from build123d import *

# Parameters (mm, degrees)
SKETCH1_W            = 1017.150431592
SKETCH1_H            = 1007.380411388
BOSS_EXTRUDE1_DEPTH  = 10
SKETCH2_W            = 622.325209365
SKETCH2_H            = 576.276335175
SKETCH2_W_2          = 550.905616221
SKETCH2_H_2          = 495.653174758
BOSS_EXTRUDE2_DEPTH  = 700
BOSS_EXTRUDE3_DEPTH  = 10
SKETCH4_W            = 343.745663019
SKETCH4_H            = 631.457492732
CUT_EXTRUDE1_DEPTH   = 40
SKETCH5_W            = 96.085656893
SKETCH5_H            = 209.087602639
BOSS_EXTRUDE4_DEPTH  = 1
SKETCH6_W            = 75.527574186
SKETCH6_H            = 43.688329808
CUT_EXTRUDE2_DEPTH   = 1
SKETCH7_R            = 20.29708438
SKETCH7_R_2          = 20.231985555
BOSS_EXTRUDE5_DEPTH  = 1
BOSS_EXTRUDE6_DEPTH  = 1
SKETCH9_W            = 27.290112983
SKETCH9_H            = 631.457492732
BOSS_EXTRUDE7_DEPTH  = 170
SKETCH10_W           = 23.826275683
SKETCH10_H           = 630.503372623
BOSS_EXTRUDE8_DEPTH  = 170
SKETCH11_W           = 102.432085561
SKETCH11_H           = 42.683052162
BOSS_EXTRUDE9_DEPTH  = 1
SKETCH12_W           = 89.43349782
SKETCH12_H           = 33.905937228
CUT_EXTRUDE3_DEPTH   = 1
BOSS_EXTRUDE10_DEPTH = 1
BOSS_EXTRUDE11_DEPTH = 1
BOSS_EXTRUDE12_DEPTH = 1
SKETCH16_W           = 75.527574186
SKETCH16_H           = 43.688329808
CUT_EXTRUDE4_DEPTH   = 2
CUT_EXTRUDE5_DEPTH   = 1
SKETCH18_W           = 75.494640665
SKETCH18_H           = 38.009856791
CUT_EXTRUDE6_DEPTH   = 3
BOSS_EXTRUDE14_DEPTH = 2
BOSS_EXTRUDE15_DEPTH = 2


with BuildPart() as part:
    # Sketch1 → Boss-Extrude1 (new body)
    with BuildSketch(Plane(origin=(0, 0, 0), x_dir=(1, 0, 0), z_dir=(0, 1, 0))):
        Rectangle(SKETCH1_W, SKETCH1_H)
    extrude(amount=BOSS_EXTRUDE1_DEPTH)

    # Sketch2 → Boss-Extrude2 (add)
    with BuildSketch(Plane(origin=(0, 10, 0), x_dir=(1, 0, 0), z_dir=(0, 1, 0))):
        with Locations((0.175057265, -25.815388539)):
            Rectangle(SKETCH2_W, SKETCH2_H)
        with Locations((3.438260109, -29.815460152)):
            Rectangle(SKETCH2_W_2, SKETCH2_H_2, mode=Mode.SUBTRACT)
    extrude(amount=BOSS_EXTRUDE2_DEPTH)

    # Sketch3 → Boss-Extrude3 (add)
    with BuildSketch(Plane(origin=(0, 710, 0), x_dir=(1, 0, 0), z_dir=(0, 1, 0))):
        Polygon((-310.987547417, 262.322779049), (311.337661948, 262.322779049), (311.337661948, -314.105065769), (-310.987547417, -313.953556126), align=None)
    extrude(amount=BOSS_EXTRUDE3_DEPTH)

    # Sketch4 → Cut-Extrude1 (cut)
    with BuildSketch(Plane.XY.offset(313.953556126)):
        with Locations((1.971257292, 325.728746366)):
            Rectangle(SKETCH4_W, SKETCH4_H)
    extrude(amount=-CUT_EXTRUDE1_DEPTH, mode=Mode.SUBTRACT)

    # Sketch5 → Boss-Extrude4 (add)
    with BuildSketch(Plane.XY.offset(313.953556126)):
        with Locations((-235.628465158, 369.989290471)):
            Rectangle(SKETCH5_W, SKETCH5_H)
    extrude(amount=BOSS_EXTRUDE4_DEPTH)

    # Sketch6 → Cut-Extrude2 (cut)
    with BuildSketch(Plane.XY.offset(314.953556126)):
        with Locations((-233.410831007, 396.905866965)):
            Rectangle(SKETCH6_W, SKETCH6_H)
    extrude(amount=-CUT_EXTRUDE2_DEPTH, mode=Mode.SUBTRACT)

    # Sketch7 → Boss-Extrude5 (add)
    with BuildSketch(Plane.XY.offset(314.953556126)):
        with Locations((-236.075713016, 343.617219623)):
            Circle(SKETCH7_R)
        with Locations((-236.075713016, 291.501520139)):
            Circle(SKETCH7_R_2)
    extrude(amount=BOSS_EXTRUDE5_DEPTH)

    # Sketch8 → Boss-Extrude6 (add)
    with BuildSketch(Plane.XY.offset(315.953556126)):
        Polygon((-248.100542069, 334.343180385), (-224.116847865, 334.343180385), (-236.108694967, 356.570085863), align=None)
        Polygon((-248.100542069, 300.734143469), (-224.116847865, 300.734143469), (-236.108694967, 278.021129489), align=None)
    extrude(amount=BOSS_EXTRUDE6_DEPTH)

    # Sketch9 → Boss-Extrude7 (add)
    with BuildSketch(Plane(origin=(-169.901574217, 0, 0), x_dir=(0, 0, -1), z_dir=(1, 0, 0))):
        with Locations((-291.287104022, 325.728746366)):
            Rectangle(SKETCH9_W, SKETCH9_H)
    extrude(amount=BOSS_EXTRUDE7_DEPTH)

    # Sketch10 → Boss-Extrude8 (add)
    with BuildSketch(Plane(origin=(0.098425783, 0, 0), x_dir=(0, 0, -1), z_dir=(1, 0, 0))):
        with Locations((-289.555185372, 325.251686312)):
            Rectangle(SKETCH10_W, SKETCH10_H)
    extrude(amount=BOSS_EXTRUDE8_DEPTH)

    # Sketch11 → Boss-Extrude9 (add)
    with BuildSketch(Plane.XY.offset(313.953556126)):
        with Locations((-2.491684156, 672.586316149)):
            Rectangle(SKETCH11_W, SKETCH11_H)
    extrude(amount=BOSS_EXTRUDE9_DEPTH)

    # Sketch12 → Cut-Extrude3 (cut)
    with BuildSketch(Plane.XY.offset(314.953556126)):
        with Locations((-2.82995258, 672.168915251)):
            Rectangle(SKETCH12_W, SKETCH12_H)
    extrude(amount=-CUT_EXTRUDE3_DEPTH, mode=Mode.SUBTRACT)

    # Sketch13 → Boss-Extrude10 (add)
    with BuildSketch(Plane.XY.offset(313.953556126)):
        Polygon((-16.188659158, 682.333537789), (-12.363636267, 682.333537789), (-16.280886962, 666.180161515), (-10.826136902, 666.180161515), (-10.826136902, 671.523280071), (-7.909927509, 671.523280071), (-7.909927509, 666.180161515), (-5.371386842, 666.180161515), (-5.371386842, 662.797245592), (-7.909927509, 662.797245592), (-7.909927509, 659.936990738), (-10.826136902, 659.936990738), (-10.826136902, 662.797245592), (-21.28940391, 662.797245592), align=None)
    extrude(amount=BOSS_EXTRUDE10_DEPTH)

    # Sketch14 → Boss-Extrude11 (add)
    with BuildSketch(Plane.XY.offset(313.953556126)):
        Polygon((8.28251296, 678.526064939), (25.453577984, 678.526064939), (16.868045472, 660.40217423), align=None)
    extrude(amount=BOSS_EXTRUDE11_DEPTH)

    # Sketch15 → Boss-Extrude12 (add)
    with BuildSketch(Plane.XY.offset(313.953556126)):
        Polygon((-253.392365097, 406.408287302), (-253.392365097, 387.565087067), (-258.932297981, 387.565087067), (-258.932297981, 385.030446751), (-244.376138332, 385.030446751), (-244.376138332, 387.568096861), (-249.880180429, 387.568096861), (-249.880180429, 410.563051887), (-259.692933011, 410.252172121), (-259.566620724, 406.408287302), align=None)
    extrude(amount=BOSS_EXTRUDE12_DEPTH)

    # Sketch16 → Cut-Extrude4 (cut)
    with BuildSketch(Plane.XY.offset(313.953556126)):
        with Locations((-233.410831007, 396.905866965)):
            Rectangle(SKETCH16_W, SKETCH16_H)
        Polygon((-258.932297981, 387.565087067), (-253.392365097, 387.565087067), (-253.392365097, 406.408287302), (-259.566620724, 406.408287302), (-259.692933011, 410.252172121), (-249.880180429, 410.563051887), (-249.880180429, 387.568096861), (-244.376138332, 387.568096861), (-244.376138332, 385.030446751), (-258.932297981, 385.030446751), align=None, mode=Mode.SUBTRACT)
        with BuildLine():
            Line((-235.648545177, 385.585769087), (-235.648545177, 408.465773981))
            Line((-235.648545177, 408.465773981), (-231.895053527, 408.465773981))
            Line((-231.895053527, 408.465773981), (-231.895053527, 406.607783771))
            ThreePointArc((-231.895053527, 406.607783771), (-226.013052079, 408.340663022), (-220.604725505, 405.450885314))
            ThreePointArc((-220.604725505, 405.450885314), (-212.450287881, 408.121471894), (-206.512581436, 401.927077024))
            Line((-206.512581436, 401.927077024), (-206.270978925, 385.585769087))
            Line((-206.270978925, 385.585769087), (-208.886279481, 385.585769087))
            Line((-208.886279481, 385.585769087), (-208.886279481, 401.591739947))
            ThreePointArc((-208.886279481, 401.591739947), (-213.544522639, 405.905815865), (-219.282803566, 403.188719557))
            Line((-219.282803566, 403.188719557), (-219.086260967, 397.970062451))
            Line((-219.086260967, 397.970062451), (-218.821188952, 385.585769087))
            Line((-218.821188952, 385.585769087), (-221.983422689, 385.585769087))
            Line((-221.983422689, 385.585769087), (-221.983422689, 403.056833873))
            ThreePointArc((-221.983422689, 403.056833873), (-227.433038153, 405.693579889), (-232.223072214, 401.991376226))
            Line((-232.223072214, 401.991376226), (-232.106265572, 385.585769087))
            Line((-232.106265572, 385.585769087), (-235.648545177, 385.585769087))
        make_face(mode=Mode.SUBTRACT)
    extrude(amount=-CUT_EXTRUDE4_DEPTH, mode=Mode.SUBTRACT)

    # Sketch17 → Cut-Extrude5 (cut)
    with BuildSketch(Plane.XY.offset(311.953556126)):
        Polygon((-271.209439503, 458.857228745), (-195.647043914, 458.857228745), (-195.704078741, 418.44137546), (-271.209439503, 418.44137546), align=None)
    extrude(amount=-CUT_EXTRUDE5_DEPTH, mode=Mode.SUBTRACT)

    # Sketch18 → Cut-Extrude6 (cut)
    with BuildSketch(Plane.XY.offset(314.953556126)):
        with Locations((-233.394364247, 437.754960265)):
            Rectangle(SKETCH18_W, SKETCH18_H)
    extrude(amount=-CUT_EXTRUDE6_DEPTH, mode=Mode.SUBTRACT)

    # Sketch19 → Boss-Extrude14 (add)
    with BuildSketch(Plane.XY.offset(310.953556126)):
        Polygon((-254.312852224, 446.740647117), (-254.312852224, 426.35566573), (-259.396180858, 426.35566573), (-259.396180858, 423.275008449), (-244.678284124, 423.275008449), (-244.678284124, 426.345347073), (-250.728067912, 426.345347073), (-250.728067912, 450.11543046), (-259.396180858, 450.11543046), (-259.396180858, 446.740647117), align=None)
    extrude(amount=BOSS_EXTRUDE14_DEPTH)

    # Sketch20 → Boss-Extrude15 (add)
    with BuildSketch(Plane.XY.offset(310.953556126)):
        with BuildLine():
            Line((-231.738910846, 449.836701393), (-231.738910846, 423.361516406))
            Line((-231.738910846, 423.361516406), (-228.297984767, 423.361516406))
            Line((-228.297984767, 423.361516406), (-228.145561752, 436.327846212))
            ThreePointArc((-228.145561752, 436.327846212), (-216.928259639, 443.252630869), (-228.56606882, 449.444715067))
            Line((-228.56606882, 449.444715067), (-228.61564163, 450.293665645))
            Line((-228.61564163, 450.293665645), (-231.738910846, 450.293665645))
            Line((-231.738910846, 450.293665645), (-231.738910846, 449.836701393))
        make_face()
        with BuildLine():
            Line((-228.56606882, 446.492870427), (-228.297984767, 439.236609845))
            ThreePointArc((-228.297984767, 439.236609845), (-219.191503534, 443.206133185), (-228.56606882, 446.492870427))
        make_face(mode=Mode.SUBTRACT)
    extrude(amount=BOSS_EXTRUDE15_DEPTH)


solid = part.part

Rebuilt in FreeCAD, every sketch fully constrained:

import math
import FreeCAD as App
import Part
import Sketcher
Q = App.Units.Quantity

doc = App.newDocument("Part")
body = doc.addObject("PartDesign::Body", "Body")

sketch1 = body.newObject("Sketcher::SketchObject", "Sketch")
sketch1.AttachmentSupport = (doc.getObject("XZ_Plane"), [""])
sketch1.MapMode = "FlatFace"
sketch1.addGeometry([
    Part.LineSegment(App.Vector(-509, -504, 0), App.Vector(-509, 504, 0)),
    Part.LineSegment(App.Vector(-509, 504, 0), App.Vector(509, 504, 0)),
    Part.LineSegment(App.Vector(509, 504, 0), App.Vector(509, -504, 0)),
    Part.LineSegment(App.Vector(509, -504, 0), App.Vector(-509, -504, 0)),
], False)
sketch1.addConstraint([
    Sketcher.Constraint("Coincident", 0, 2, 1, 1),
    Sketcher.Constraint("Coincident", 1, 2, 2, 1),
    Sketcher.Constraint("Coincident", 2, 2, 3, 1),
    Sketcher.Constraint("Coincident", 3, 2, 0, 1),
    Sketcher.Constraint("Vertical", 0),
    Sketcher.Constraint("Horizontal", 1),
    Sketcher.Constraint("Vertical", 2),
    Sketcher.Constraint("Horizontal", 3),
    Sketcher.Constraint("Symmetric", 0, 2, 2, 2, -1, 1),
    Sketcher.Constraint("DistanceX", 1, 1, 1, 2, Q("1017.150432 mm")),
    Sketcher.Constraint("DistanceY", 0, 1, 0, 2, Q("1007.380411 mm")),
])
pad1 = body.newObject("PartDesign::Pad", "Pad")
pad1.Profile = sketch1
pad1.Length = 10
pad1.Reversed = True

sketch2 = body.newObject("Sketcher::SketchObject", "Sketch001")
sketch2.AttachmentSupport = (doc.getObject("XZ_Plane"), [""])
sketch2.MapMode = "FlatFace"
sketch2.AttachmentOffset = App.Placement(App.Vector(0, 0, -10), App.Rotation())
sketch2.addGeometry([
    Part.LineSegment(App.Vector(-311, -262, 0), App.Vector(-311, 314, 0)),
    Part.LineSegment(App.Vector(-311, 314, 0), App.Vector(311, 314, 0)),
    Part.LineSegment(App.Vector(311, 314, 0), App.Vector(311, -262, 0)),
    Part.LineSegment(App.Vector(311, -262, 0), App.Vector(-311, -262, 0)),
    Part.LineSegment(App.Vector(279, 278, 0), App.Vector(-272, 278, 0)),
    Part.LineSegment(App.Vector(-272, 278, 0), App.Vector(-272, -218, 0)),
    Part.LineSegment(App.Vector(-272, -218, 0), App.Vector(279, -218, 0)),
    Part.LineSegment(App.Vector(279, -218, 0), App.Vector(279, 278, 0)),
], False)
sketch2.addConstraint([
    Sketcher.Constraint("Coincident", 0, 2, 1, 1),
    Sketcher.Constraint("Coincident", 1, 2, 2, 1),
    Sketcher.Constraint("Coincident", 2, 2, 3, 1),
    Sketcher.Constraint("Coincident", 3, 2, 0, 1),
    Sketcher.Constraint("Coincident", 4, 2, 5, 1),
    Sketcher.Constraint("Coincident", 5, 2, 6, 1),
    Sketcher.Constraint("Coincident", 6, 2, 7, 1),
    Sketcher.Constraint("Coincident", 7, 2, 4, 1),
    Sketcher.Constraint("Vertical", 0),
    Sketcher.Constraint("Horizontal", 1),
    Sketcher.Constraint("Vertical", 2),
    Sketcher.Constraint("Horizontal", 3),
    Sketcher.Constraint("Horizontal", 4),
    Sketcher.Constraint("Vertical", 5),
    Sketcher.Constraint("Horizontal", 6),
    Sketcher.Constraint("Vertical", 7),
    Sketcher.Constraint("DistanceX", 0, 2, 4, 2, Q("38.972999 mm")),
    Sketcher.Constraint("DistanceX", 1, 1, 1, 2, Q("622.325209 mm")),
    Sketcher.Constraint("DistanceX", 4, 2, 4, 1, Q("550.905616 mm")),
    Sketcher.Constraint("DistanceY", 0, 1, 0, 2, Q("576.276335 mm")),
    Sketcher.Constraint("DistanceY", 5, 2, 5, 1, Q("495.653175 mm")),
    Sketcher.Constraint("DistanceX", -1, 1, 1, 2, Q("311.337662 mm")),
    Sketcher.Constraint("DistanceY", 2, 2, -1, 1, Q("262.322779 mm")),
    Sketcher.Constraint("DistanceY", 4, 2, 0, 2, Q("36.311509 mm")),
])
pad2 = body.newObject("PartDesign::Pad", "Pad001")
pad2.Profile = sketch2
pad2.Length = 700
pad2.Reversed = True

sketch3 = body.newObject("Sketcher::SketchObject", "Sketch002")
sketch3.AttachmentSupport = (doc.getObject("XZ_Plane"), [""])
sketch3.MapMode = "FlatFace"
sketch3.AttachmentOffset = App.Placement(App.Vector(0, 0, -710), App.Rotation())
sketch3.addGeometry([
    Part.LineSegment(App.Vector(311, -262, 0), App.Vector(-311, -262, 0)),
    Part.LineSegment(App.Vector(-311, -262, 0), App.Vector(-311, 314, 0)),
    Part.LineSegment(App.Vector(-311, 314, 0), App.Vector(311, 314, 0)),
    Part.LineSegment(App.Vector(311, 314, 0), App.Vector(311, -262, 0)),
], False)
sketch3.addConstraint([
    Sketcher.Constraint("Coincident", 0, 2, 1, 1),
    Sketcher.Constraint("Coincident", 1, 2, 2, 1),
    Sketcher.Constraint("Coincident", 2, 2, 3, 1),
    Sketcher.Constraint("Coincident", 3, 2, 0, 1),
    Sketcher.Constraint("Horizontal", 0),
    Sketcher.Constraint("Vertical", 1),
    Sketcher.Constraint("Vertical", 3),
    Sketcher.Constraint("DistanceX", 0, 2, 0, 1, Q("622.325209 mm")),
    Sketcher.Constraint("DistanceY", 1, 1, 1, 2, Q("576.276335 mm")),
    Sketcher.Constraint("DistanceY", 3, 2, 3, 1, Q("576.427845 mm")),
    Sketcher.Constraint("DistanceY", 0, 2, -1, 1, Q("262.322779 mm")),
    Sketcher.Constraint("DistanceX", -1, 1, 2, 2, Q("311.337662 mm")),
])
pad3 = body.newObject("PartDesign::Pad", "Pad002")
pad3.Profile = sketch3
pad3.Length = 10
pad3.Reversed = True

sketch4 = body.newObject("Sketcher::SketchObject", "Sketch003")
sketch4.AttachmentSupport = (doc.getObject("XY_Plane"), [""])
sketch4.MapMode = "FlatFace"
sketch4.AttachmentOffset = App.Placement(App.Vector(0, 0, 313.953556), App.Rotation())
sketch4.addGeometry([
    Part.LineSegment(App.Vector(-170, 641, 0), App.Vector(-170, 10, 0)),
    Part.LineSegment(App.Vector(-170, 10, 0), App.Vector(174, 10, 0)),
    Part.LineSegment(App.Vector(174, 10, 0), App.Vector(174, 641, 0)),
    Part.LineSegment(App.Vector(174, 641, 0), App.Vector(-170, 641, 0)),
], False)
sketch4.addConstraint([
    Sketcher.Constraint("Coincident", 0, 2, 1, 1),
    Sketcher.Constraint("Coincident", 1, 2, 2, 1),
    Sketcher.Constraint("Coincident", 2, 2, 3, 1),
    Sketcher.Constraint("Coincident", 3, 2, 0, 1),
    Sketcher.Constraint("Vertical", 0),
    Sketcher.Constraint("Horizontal", 1),
    Sketcher.Constraint("Vertical", 2),
    Sketcher.Constraint("Horizontal", 3),
    Sketcher.Constraint("DistanceY", -1, 1, 0, 2, Q("10 mm")),
    Sketcher.Constraint("DistanceX", 1, 1, 1, 2, Q("343.745663 mm")),
    Sketcher.Constraint("DistanceY", 0, 2, 0, 1, Q("631.457493 mm")),
    Sketcher.Constraint("DistanceX", -1, 1, 1, 2, Q("173.844089 mm")),
])
pocket1 = body.newObject("PartDesign::Pocket", "Pocket")
pocket1.Profile = sketch4
pocket1.Length = 40

sketch5 = body.newObject("Sketcher::SketchObject", "Sketch004")
sketch5.AttachmentSupport = (doc.getObject("XY_Plane"), [""])
sketch5.MapMode = "FlatFace"
sketch5.AttachmentOffset = App.Placement(App.Vector(0, 0, 313.953556), App.Rotation())
sketch5.addGeometry([
    Part.LineSegment(App.Vector(-284, 475, 0), App.Vector(-284, 265, 0)),
    Part.LineSegment(App.Vector(-284, 265, 0), App.Vector(-188, 265, 0)),
    Part.LineSegment(App.Vector(-188, 265, 0), App.Vector(-188, 475, 0)),
    Part.LineSegment(App.Vector(-188, 475, 0), App.Vector(-284, 475, 0)),
], False)
sketch5.addConstraint([
    Sketcher.Constraint("Coincident", 0, 2, 1, 1),
    Sketcher.Constraint("Coincident", 1, 2, 2, 1),
    Sketcher.Constraint("Coincident", 2, 2, 3, 1),
    Sketcher.Constraint("Coincident", 3, 2, 0, 1),
    Sketcher.Constraint("Vertical", 0),
    Sketcher.Constraint("Horizontal", 1),
    Sketcher.Constraint("Vertical", 2),
    Sketcher.Constraint("Horizontal", 3),
    Sketcher.Constraint("DistanceX", 1, 1, 1, 2, Q("96.085657 mm")),
    Sketcher.Constraint("DistanceY", 0, 2, 0, 1, Q("209.087603 mm")),
    Sketcher.Constraint("DistanceY", -1, 1, 0, 2, Q("265.445489 mm")),
    Sketcher.Constraint("DistanceX", 0, 2, -1, 1, Q("283.671294 mm")),
])
pad4 = body.newObject("PartDesign::Pad", "Pad003")
pad4.Profile = sketch5
pad4.Length = 1

sketch6 = body.newObject("Sketcher::SketchObject", "Sketch005")
sketch6.AttachmentSupport = (doc.getObject("XY_Plane"), [""])
sketch6.MapMode = "FlatFace"
sketch6.AttachmentOffset = App.Placement(App.Vector(0, 0, 314.953556), App.Rotation())
sketch6.addGeometry([
    Part.LineSegment(App.Vector(-271, 419, 0), App.Vector(-271, 375, 0)),
    Part.LineSegment(App.Vector(-271, 375, 0), App.Vector(-196, 375, 0)),
    Part.LineSegment(App.Vector(-196, 375, 0), App.Vector(-196, 419, 0)),
    Part.LineSegment(App.Vector(-196, 419, 0), App.Vector(-271, 419, 0)),
], False)
sketch6.addConstraint([
    Sketcher.Constraint("Coincident", 0, 2, 1, 1),
    Sketcher.Constraint("Coincident", 1, 2, 2, 1),
    Sketcher.Constraint("Coincident", 2, 2, 3, 1),
    Sketcher.Constraint("Coincident", 3, 2, 0, 1),
    Sketcher.Constraint("Vertical", 0),
    Sketcher.Constraint("Horizontal", 1),
    Sketcher.Constraint("Vertical", 2),
    Sketcher.Constraint("Horizontal", 3),
    Sketcher.Constraint("DistanceY", 0, 2, 0, 1, Q("43.68833 mm")),
    Sketcher.Constraint("DistanceX", 1, 1, 1, 2, Q("75.527574 mm")),
    Sketcher.Constraint("DistanceX", 0, 2, -1, 1, Q("271.174618 mm")),
    Sketcher.Constraint("DistanceY", -1, 1, 2, 2, Q("418.750032 mm")),
])
pocket2 = body.newObject("PartDesign::Pocket", "Pocket001")
pocket2.Profile = sketch6
pocket2.Length = 1

sketch7 = body.newObject("Sketcher::SketchObject", "Sketch006")
sketch7.AttachmentSupport = (doc.getObject("XY_Plane"), [""])
sketch7.MapMode = "FlatFace"
sketch7.AttachmentOffset = App.Placement(App.Vector(0, 0, 314.953556), App.Rotation())
sketch7.addGeometry([
    Part.Circle(App.Vector(-236, 344, 0), App.Vector(0, 0, 1), 20),
    Part.Circle(App.Vector(-236, 292, 0), App.Vector(0, 0, 1), 20),
], False)
sketch7.addConstraint([
    Sketcher.Constraint("Vertical", 0, 3, 1, 3),
    Sketcher.Constraint("Diameter", 0, Q("40.594169 mm")),
    Sketcher.Constraint("Diameter", 1, Q("40.463971 mm")),
    Sketcher.Constraint("DistanceY", 1, 3, 0, 3, Q("52.115699 mm")),
    Sketcher.Constraint("DistanceY", -1, 1, 0, 3, Q("343.61722 mm")),
    Sketcher.Constraint("DistanceX", 0, 3, -1, 1, Q("236.075713 mm")),
])
pad5 = body.newObject("PartDesign::Pad", "Pad004")
pad5.Profile = sketch7
pad5.Length = 1

sketch8 = body.newObject("Sketcher::SketchObject", "Sketch007")
sketch8.AttachmentSupport = (doc.getObject("XY_Plane"), [""])
sketch8.MapMode = "FlatFace"
sketch8.AttachmentOffset = App.Placement(App.Vector(0, 0, 315.953556), App.Rotation())
sketch8.addGeometry([
    Part.LineSegment(App.Vector(-248, 334, 0), App.Vector(-224, 334, 0)),
    Part.LineSegment(App.Vector(-224, 334, 0), App.Vector(-236, 357, 0)),
    Part.LineSegment(App.Vector(-236, 357, 0), App.Vector(-248, 334, 0)),
    Part.LineSegment(App.Vector(-224, 301, 0), App.Vector(-248, 301, 0)),
    Part.LineSegment(App.Vector(-248, 301, 0), App.Vector(-236, 278, 0)),
    Part.LineSegment(App.Vector(-236, 278, 0), App.Vector(-224, 301, 0)),
], False)
sketch8.addConstraint([
    Sketcher.Constraint("Coincident", 0, 2, 1, 1),
    Sketcher.Constraint("Coincident", 1, 2, 2, 1),
    Sketcher.Constraint("Coincident", 2, 2, 0, 1),
    Sketcher.Constraint("Coincident", 3, 2, 4, 1),
    Sketcher.Constraint("Coincident", 4, 2, 5, 1),
    Sketcher.Constraint("Coincident", 5, 2, 3, 1),
    Sketcher.Constraint("Horizontal", 0),
    Sketcher.Constraint("Horizontal", 3),
    Sketcher.Constraint("Vertical", 2, 2, 3, 2),
    Sketcher.Constraint("Vertical", 1, 2, 4, 2),
    Sketcher.Constraint("Vertical", 0, 2, 5, 2),
    Sketcher.Constraint("Equal", 1, 2),
    Sketcher.Constraint("Distance", 1, Q("25.255489 mm")),
    Sketcher.Constraint("Distance", 4, Q("25.684342 mm")),
    Sketcher.Constraint("DistanceX", 0, 1, 0, 2, Q("23.983694 mm")),
    Sketcher.Constraint("DistanceY", -1, 1, 0, 2, Q("334.34318 mm")),
    Sketcher.Constraint("DistanceY", -1, 1, 4, 2, Q("278.021129 mm")),
    Sketcher.Constraint("DistanceX", 0, 2, -1, 1, Q("224.116848 mm")),
])
pad6 = body.newObject("PartDesign::Pad", "Pad005")
pad6.Profile = sketch8
pad6.Length = 1

sketch9 = body.newObject("Sketcher::SketchObject", "Sketch008")
sketch9.AttachmentSupport = (doc.getObject("YZ_Plane"), [""])
sketch9.MapMode = "FlatFace"
sketch9.AttachmentOffset = App.Placement(App.Vector(0, 0, -169.901574), App.Rotation())
sketch9.addGeometry([
    Part.LineSegment(App.Vector(641, 305, 0), App.Vector(10, 305, 0)),
    Part.LineSegment(App.Vector(10, 305, 0), App.Vector(10, 278, 0)),
    Part.LineSegment(App.Vector(10, 278, 0), App.Vector(641, 278, 0)),
    Part.LineSegment(App.Vector(641, 278, 0), App.Vector(641, 305, 0)),
], False)
sketch9.addConstraint([
    Sketcher.Constraint("Coincident", 0, 2, 1, 1),
    Sketcher.Constraint("Coincident", 1, 2, 2, 1),
    Sketcher.Constraint("Coincident", 2, 2, 3, 1),
    Sketcher.Constraint("Coincident", 3, 2, 0, 1),
    Sketcher.Constraint("Horizontal", 0),
    Sketcher.Constraint("Vertical", 1),
    Sketcher.Constraint("Horizontal", 2),
    Sketcher.Constraint("Vertical", 3),
    Sketcher.Constraint("DistanceX", -1, 1, 0, 2, Q("10 mm")),
    Sketcher.Constraint("DistanceX", 0, 2, 0, 1, Q("631.457493 mm")),
    Sketcher.Constraint("DistanceY", 1, 2, 1, 1, Q("27.290113 mm")),
    Sketcher.Constraint("DistanceY", -1, 1, 0, 2, Q("304.932161 mm")),
])
pad7 = body.newObject("PartDesign::Pad", "Pad006")
pad7.Profile = sketch9
pad7.Length = 170

sketch10 = body.newObject("Sketcher::SketchObject", "Sketch009")
sketch10.AttachmentSupport = (doc.getObject("YZ_Plane"), [""])
sketch10.MapMode = "FlatFace"
sketch10.AttachmentOffset = App.Placement(App.Vector(0, 0, 0.098426), App.Rotation())
sketch10.addGeometry([
    Part.LineSegment(App.Vector(641, 301, 0), App.Vector(10, 301, 0)),
    Part.LineSegment(App.Vector(10, 301, 0), App.Vector(10, 278, 0)),
    Part.LineSegment(App.Vector(10, 278, 0), App.Vector(641, 278, 0)),
    Part.LineSegment(App.Vector(641, 278, 0), App.Vector(641, 301, 0)),
], False)
sketch10.addConstraint([
    Sketcher.Constraint("Coincident", 0, 2, 1, 1),
    Sketcher.Constraint("Coincident", 1, 2, 2, 1),
    Sketcher.Constraint("Coincident", 2, 2, 3, 1),
    Sketcher.Constraint("Coincident", 3, 2, 0, 1),
    Sketcher.Constraint("Horizontal", 0),
    Sketcher.Constraint("Vertical", 1),
    Sketcher.Constraint("Horizontal", 2),
    Sketcher.Constraint("Vertical", 3),
    Sketcher.Constraint("DistanceX", -1, 1, 0, 2, Q("10 mm")),
    Sketcher.Constraint("DistanceX", 0, 2, 0, 1, Q("630.503373 mm")),
    Sketcher.Constraint("DistanceY", 1, 2, 1, 1, Q("23.826276 mm")),
    Sketcher.Constraint("DistanceY", -1, 1, 0, 2, Q("301.468323 mm")),
])
pad8 = body.newObject("PartDesign::Pad", "Pad007")
pad8.Profile = sketch10
pad8.Length = 170

sketch11 = body.newObject("Sketcher::SketchObject", "Sketch010")
sketch11.AttachmentSupport = (doc.getObject("XY_Plane"), [""])
sketch11.MapMode = "FlatFace"
sketch11.AttachmentOffset = App.Placement(App.Vector(0, 0, 313.953556), App.Rotation())
sketch11.addGeometry([
    Part.LineSegment(App.Vector(-54, 694, 0), App.Vector(-54, 651, 0)),
    Part.LineSegment(App.Vector(-54, 651, 0), App.Vector(49, 651, 0)),
    Part.LineSegment(App.Vector(49, 651, 0), App.Vector(49, 694, 0)),
    Part.LineSegment(App.Vector(49, 694, 0), App.Vector(-54, 694, 0)),
], False)
sketch11.addConstraint([
    Sketcher.Constraint("Coincident", 0, 2, 1, 1),
    Sketcher.Constraint("Coincident", 1, 2, 2, 1),
    Sketcher.Constraint("Coincident", 2, 2, 3, 1),
    Sketcher.Constraint("Coincident", 3, 2, 0, 1),
    Sketcher.Constraint("Vertical", 0),
    Sketcher.Constraint("Horizontal", 1),
    Sketcher.Constraint("Vertical", 2),
    Sketcher.Constraint("Horizontal", 3),
    Sketcher.Constraint("DistanceX", 1, 1, 1, 2, Q("102.432086 mm")),
    Sketcher.Constraint("DistanceY", 0, 2, 0, 1, Q("42.683052 mm")),
    Sketcher.Constraint("DistanceY", -1, 1, 0, 2, Q("651.24479 mm")),
    Sketcher.Constraint("DistanceX", -1, 1, 1, 2, Q("48.724359 mm")),
])
pad9 = body.newObject("PartDesign::Pad", "Pad008")
pad9.Profile = sketch11
pad9.Length = 1

sketch12 = body.newObject("Sketcher::SketchObject", "Sketch011")
sketch12.AttachmentSupport = (doc.getObject("XY_Plane"), [""])
sketch12.MapMode = "FlatFace"
sketch12.AttachmentOffset = App.Placement(App.Vector(0, 0, 314.953556), App.Rotation())
sketch12.addGeometry([
    Part.LineSegment(App.Vector(-48, 689, 0), App.Vector(-48, 655, 0)),
    Part.LineSegment(App.Vector(-48, 655, 0), App.Vector(42, 655, 0)),
    Part.LineSegment(App.Vector(42, 655, 0), App.Vector(42, 689, 0)),
    Part.LineSegment(App.Vector(42, 689, 0), App.Vector(-48, 689, 0)),
], False)
sketch12.addConstraint([
    Sketcher.Constraint("Coincident", 0, 2, 1, 1),
    Sketcher.Constraint("Coincident", 1, 2, 2, 1),
    Sketcher.Constraint("Coincident", 2, 2, 3, 1),
    Sketcher.Constraint("Coincident", 3, 2, 0, 1),
    Sketcher.Constraint("Vertical", 0),
    Sketcher.Constraint("Horizontal", 1),
    Sketcher.Constraint("Vertical", 2),
    Sketcher.Constraint("Horizontal", 3),
    Sketcher.Constraint("DistanceX", 0, 2, -1, 1, Q("47.546701 mm")),
    Sketcher.Constraint("DistanceX", 1, 1, 1, 2, Q("89.433498 mm")),
    Sketcher.Constraint("DistanceY", 0, 2, 0, 1, Q("33.905937 mm")),
    Sketcher.Constraint("DistanceY", -1, 1, 0, 2, Q("655.215947 mm")),
])
pocket3 = body.newObject("PartDesign::Pocket", "Pocket002")
pocket3.Profile = sketch12
pocket3.Length = 1

sketch13 = body.newObject("Sketcher::SketchObject", "Sketch012")
sketch13.AttachmentSupport = (doc.getObject("XY_Plane"), [""])
sketch13.MapMode = "FlatFace"
sketch13.AttachmentOffset = App.Placement(App.Vector(0, 0, 313.953556), App.Rotation())
sketch13.addGeometry([
    Part.LineSegment(App.Vector(-12.4, 682.3, 0), App.Vector(-16.2, 682.3, 0)),
    Part.LineSegment(App.Vector(-16.2, 682.3, 0), App.Vector(-21.3, 662.8, 0)),
    Part.LineSegment(App.Vector(-21.3, 662.8, 0), App.Vector(-10.8, 662.8, 0)),
    Part.LineSegment(App.Vector(-10.8, 662.8, 0), App.Vector(-10.8, 659.9, 0)),
    Part.LineSegment(App.Vector(-10.8, 659.9, 0), App.Vector(-7.9, 659.9, 0)),
    Part.LineSegment(App.Vector(-7.9, 659.9, 0), App.Vector(-7.9, 662.8, 0)),
    Part.LineSegment(App.Vector(-7.9, 662.8, 0), App.Vector(-5.4, 662.8, 0)),
    Part.LineSegment(App.Vector(-5.4, 662.8, 0), App.Vector(-5.4, 666.2, 0)),
    Part.LineSegment(App.Vector(-5.4, 666.2, 0), App.Vector(-7.9, 666.2, 0)),
    Part.LineSegment(App.Vector(-7.9, 666.2, 0), App.Vector(-7.9, 671.5, 0)),
    Part.LineSegment(App.Vector(-7.9, 671.5, 0), App.Vector(-10.8, 671.5, 0)),
    Part.LineSegment(App.Vector(-10.8, 671.5, 0), App.Vector(-10.8, 666.2, 0)),
    Part.LineSegment(App.Vector(-10.8, 666.2, 0), App.Vector(-16.3, 666.2, 0)),
    Part.LineSegment(App.Vector(-16.3, 666.2, 0), App.Vector(-12.4, 682.3, 0)),
], False)
sketch13.addConstraint([
    Sketcher.Constraint("Coincident", 0, 2, 1, 1),
    Sketcher.Constraint("Coincident", 1, 2, 2, 1),
    Sketcher.Constraint("Coincident", 2, 2, 3, 1),
    Sketcher.Constraint("Coincident", 3, 2, 4, 1),
    Sketcher.Constraint("Coincident", 4, 2, 5, 1),
    Sketcher.Constraint("Coincident", 5, 2, 6, 1),
    Sketcher.Constraint("Coincident", 6, 2, 7, 1),
    Sketcher.Constraint("Coincident", 7, 2, 8, 1),
    Sketcher.Constraint("Coincident", 8, 2, 9, 1),
    Sketcher.Constraint("Coincident", 9, 2, 10, 1),
    Sketcher.Constraint("Coincident", 10, 2, 11, 1),
    Sketcher.Constraint("Coincident", 11, 2, 12, 1),
    Sketcher.Constraint("Coincident", 12, 2, 13, 1),
    Sketcher.Constraint("Coincident", 13, 2, 0, 1),
    Sketcher.Constraint("Horizontal", 0),
    Sketcher.Constraint("Horizontal", 2),
    Sketcher.Constraint("Vertical", 3),
    Sketcher.Constraint("Horizontal", 4),
    Sketcher.Constraint("Vertical", 5),
    Sketcher.Constraint("Horizontal", 6),
    Sketcher.Constraint("Vertical", 7),
    Sketcher.Constraint("Horizontal", 8),
    Sketcher.Constraint("Vertical", 9),
    Sketcher.Constraint("Horizontal", 10),
    Sketcher.Constraint("Vertical", 11),
    Sketcher.Constraint("Horizontal", 12),
    Sketcher.Constraint("Horizontal", 2, 2, 5, 2),
    Sketcher.Constraint("Horizontal", 8, 2, 11, 2),
    Sketcher.Constraint("Vertical", 5, 2, 8, 2),
    Sketcher.Constraint("Vertical", 3, 2, 10, 2),
    Sketcher.Constraint("DistanceX", 4, 1, 4, 2, Q("2.916209 mm")),
    Sketcher.Constraint("DistanceX", 6, 1, 6, 2, Q("2.538541 mm")),
    Sketcher.Constraint("DistanceX", 12, 2, 12, 1, Q("5.45475 mm")),
    Sketcher.Constraint("DistanceY", 9, 1, 9, 2, Q("5.343119 mm")),
    Sketcher.Constraint("DistanceX", 13, 2, 10, 2, Q("1.537499 mm")),
    Sketcher.Constraint("DistanceX", 0, 2, 0, 1, Q("3.825023 mm")),
    Sketcher.Constraint("DistanceX", 2, 1, 2, 2, Q("10.463267 mm")),
    Sketcher.Constraint("DistanceY", 3, 2, 3, 1, Q("2.860255 mm")),
    Sketcher.Constraint("DistanceY", 7, 1, 7, 2, Q("3.382916 mm")),
    Sketcher.Constraint("DistanceX", 0, 2, -1, 1, Q("16.188659 mm")),
    Sketcher.Constraint("DistanceY", -1, 1, 3, 2, Q("659.936991 mm")),
    Sketcher.Constraint("Distance", 1, Q("20.191194 mm")),
])
pad10 = body.newObject("PartDesign::Pad", "Pad009")
pad10.Profile = sketch13
pad10.Length = 1

sketch14 = body.newObject("Sketcher::SketchObject", "Sketch013")
sketch14.AttachmentSupport = (doc.getObject("XY_Plane"), [""])
sketch14.MapMode = "FlatFace"
sketch14.AttachmentOffset = App.Placement(App.Vector(0, 0, 313.953556), App.Rotation())
sketch14.addGeometry([
    Part.LineSegment(App.Vector(25, 679, 0), App.Vector(8, 679, 0)),
    Part.LineSegment(App.Vector(8, 679, 0), App.Vector(17, 660, 0)),
    Part.LineSegment(App.Vector(17, 660, 0), App.Vector(25, 679, 0)),
], False)
sketch14.addConstraint([
    Sketcher.Constraint("Coincident", 0, 2, 1, 1),
    Sketcher.Constraint("Coincident", 1, 2, 2, 1),
    Sketcher.Constraint("Coincident", 2, 2, 0, 1),
    Sketcher.Constraint("Horizontal", 0),
    Sketcher.Constraint("Equal", 1, 2),
    Sketcher.Constraint("DistanceX", 0, 2, 0, 1, Q("17.171065 mm")),
    Sketcher.Constraint("DistanceY", 1, 2, 0, 2, Q("18.123891 mm")),
    Sketcher.Constraint("DistanceX", -1, 1, 0, 2, Q("8.282513 mm")),
    Sketcher.Constraint("DistanceY", -1, 1, 0, 2, Q("678.526065 mm")),
])
pad11 = body.newObject("PartDesign::Pad", "Pad010")
pad11.Profile = sketch14
pad11.Length = 1

sketch15 = body.newObject("Sketcher::SketchObject", "Sketch014")
sketch15.AttachmentSupport = (doc.getObject("XY_Plane"), [""])
sketch15.MapMode = "FlatFace"
sketch15.AttachmentOffset = App.Placement(App.Vector(0, 0, 313.953556), App.Rotation())
sketch15.addGeometry([
    Part.LineSegment(App.Vector(-253.4, 406.4, 0), App.Vector(-253.4, 387.6, 0)),
    Part.LineSegment(App.Vector(-253.4, 387.6, 0), App.Vector(-258.9, 387.6, 0)),
    Part.LineSegment(App.Vector(-258.9, 387.6, 0), App.Vector(-258.9, 385, 0)),
    Part.LineSegment(App.Vector(-258.9, 385, 0), App.Vector(-244.4, 385, 0)),
    Part.LineSegment(App.Vector(-244.4, 385, 0), App.Vector(-244.4, 387.6, 0)),
    Part.LineSegment(App.Vector(-244.4, 387.6, 0), App.Vector(-249.9, 387.6, 0)),
    Part.LineSegment(App.Vector(-249.9, 387.6, 0), App.Vector(-249.9, 410.6, 0)),
    Part.LineSegment(App.Vector(-249.9, 410.6, 0), App.Vector(-259.7, 410.3, 0)),
    Part.LineSegment(App.Vector(-259.7, 410.3, 0), App.Vector(-259.6, 406.4, 0)),
    Part.LineSegment(App.Vector(-259.6, 406.4, 0), App.Vector(-253.4, 406.4, 0)),
], False)
sketch15.addConstraint([
    Sketcher.Constraint("Coincident", 0, 2, 1, 1),
    Sketcher.Constraint("Coincident", 1, 2, 2, 1),
    Sketcher.Constraint("Coincident", 2, 2, 3, 1),
    Sketcher.Constraint("Coincident", 3, 2, 4, 1),
    Sketcher.Constraint("Coincident", 4, 2, 5, 1),
    Sketcher.Constraint("Coincident", 5, 2, 6, 1),
    Sketcher.Constraint("Coincident", 6, 2, 7, 1),
    Sketcher.Constraint("Coincident", 7, 2, 8, 1),
    Sketcher.Constraint("Coincident", 8, 2, 9, 1),
    Sketcher.Constraint("Coincident", 9, 2, 0, 1),
    Sketcher.Constraint("Vertical", 0),
    Sketcher.Constraint("Horizontal", 1),
    Sketcher.Constraint("Vertical", 2),
    Sketcher.Constraint("Horizontal", 3),
    Sketcher.Constraint("Vertical", 4),
    Sketcher.Constraint("Horizontal", 5),
    Sketcher.Constraint("Vertical", 6),
    Sketcher.Constraint("Horizontal", 9),
    Sketcher.Constraint("DistanceY", 0, 2, 0, 1, Q("18.8432 mm")),
    Sketcher.Constraint("DistanceX", 3, 1, 3, 2, Q("14.55616 mm")),
    Sketcher.Constraint("DistanceY", 2, 2, 2, 1, Q("2.53464 mm")),
    Sketcher.Constraint("DistanceY", 4, 1, 4, 2, Q("2.53765 mm")),
    Sketcher.Constraint("Distance", 8, Q("3.84596 mm")),
    Sketcher.Constraint("DistanceX", 1, 2, 1, 1, Q("5.539933 mm")),
    Sketcher.Constraint("DistanceX", 5, 2, 5, 1, Q("5.504042 mm")),
    Sketcher.Constraint("DistanceX", 9, 1, 9, 2, Q("6.174256 mm")),
    Sketcher.Constraint("DistanceY", 6, 1, 6, 2, Q("22.994955 mm")),
    Sketcher.Constraint("DistanceX", 3, 2, -1, 1, Q("244.376138 mm")),
    Sketcher.Constraint("DistanceY", -1, 1, 6, 2, Q("410.563052 mm")),
    Sketcher.Constraint("DistanceY", 7, 2, 6, 2, Q("0.31088 mm")),
])
pad12 = body.newObject("PartDesign::Pad", "Pad011")
pad12.Profile = sketch15
pad12.Length = 1

sketch16 = body.newObject("Sketcher::SketchObject", "Sketch015")
sketch16.AttachmentSupport = (doc.getObject("XY_Plane"), [""])
sketch16.MapMode = "FlatFace"
sketch16.AttachmentOffset = App.Placement(App.Vector(0, 0, 313.953556), App.Rotation())
sketch16.addGeometry([
    Part.LineSegment(App.Vector(-271.174618, 418.750032, 0), App.Vector(-271.174618, 375.061702, 0)),
    Part.LineSegment(App.Vector(-271.174618, 375.061702, 0), App.Vector(-195.647044, 375.061702, 0)),
    Part.LineSegment(App.Vector(-195.647044, 375.061702, 0), App.Vector(-195.647044, 418.750032, 0)),
    Part.LineSegment(App.Vector(-195.647044, 418.750032, 0), App.Vector(-271.174618, 418.750032, 0)),
    Part.LineSegment(App.Vector(-232.106266, 385.585769, 0), App.Vector(-235.648545, 385.585769, 0)),
    Part.LineSegment(App.Vector(-235.648545, 385.585769, 0), App.Vector(-235.648545, 408.465774, 0)),
    Part.LineSegment(App.Vector(-235.648545, 408.465774, 0), App.Vector(-231.895054, 408.465774, 0)),
    Part.LineSegment(App.Vector(-231.895054, 408.465774, 0), App.Vector(-231.895054, 406.607784, 0)),
    Part.ArcOfCircle(Part.Circle(App.Vector(-226.83787, 400.291155, 0), App.Vector(0, 0, 1), 8.091657), math.radians(39.617596), math.radians(128.681263)),
    Part.ArcOfCircle(Part.Circle(App.Vector(-214.404869, 400.304862, 0), App.Vector(0, 0, 1), 8.057281), math.radians(11.615056), math.radians(140.306546)),
    Part.LineSegment(App.Vector(-206.512581, 401.927077, 0), App.Vector(-206.270979, 385.585769, 0)),
    Part.LineSegment(App.Vector(-206.270979, 385.585769, 0), App.Vector(-208.886279, 385.585769, 0)),
    Part.LineSegment(App.Vector(-208.886279, 385.585769, 0), App.Vector(-208.886279, 401.59174, 0)),
    Part.ArcOfCircle(Part.Circle(App.Vector(-214.404869, 400.304862, 0), App.Vector(0, 0, 1), 5.666647), math.radians(13.126219), math.radians(149.408221)),
    Part.LineSegment(App.Vector(-219.282804, 403.18872, 0), App.Vector(-219.086261, 397.970062, 0)),
    Part.LineSegment(App.Vector(-219.086261, 397.970062, 0), App.Vector(-218.821189, 385.585769, 0)),
    Part.LineSegment(App.Vector(-218.821189, 385.585769, 0), App.Vector(-221.983423, 385.585769, 0)),
    Part.LineSegment(App.Vector(-221.983423, 385.585769, 0), App.Vector(-221.983423, 403.056834, 0)),
    Part.ArcOfCircle(Part.Circle(App.Vector(-226.83787, 399.973677, 0), App.Vector(0, 0, 1), 5.750784), math.radians(32.42045), math.radians(159.460296)),
    Part.LineSegment(App.Vector(-232.223072, 401.991376, 0), App.Vector(-232.106266, 385.585769, 0)),
    Part.LineSegment(App.Vector(-258.932298, 385.030447, 0), App.Vector(-258.932298, 387.565087, 0)),
    Part.LineSegment(App.Vector(-258.932298, 387.565087, 0), App.Vector(-253.392365, 387.565087, 0)),
    Part.LineSegment(App.Vector(-253.392365, 387.565087, 0), App.Vector(-253.392365, 406.408287, 0)),
    Part.LineSegment(App.Vector(-253.392365, 406.408287, 0), App.Vector(-259.566621, 406.408287, 0)),
    Part.LineSegment(App.Vector(-259.566621, 406.408287, 0), App.Vector(-259.692933, 410.252172, 0)),
    Part.LineSegment(App.Vector(-259.692933, 410.252172, 0), App.Vector(-249.88018, 410.563052, 0)),
    Part.LineSegment(App.Vector(-249.88018, 410.563052, 0), App.Vector(-249.88018, 387.568097, 0)),
    Part.LineSegment(App.Vector(-249.88018, 387.568097, 0), App.Vector(-244.376138, 387.568097, 0)),
    Part.LineSegment(App.Vector(-244.376138, 387.568097, 0), App.Vector(-244.376138, 385.030447, 0)),
    Part.LineSegment(App.Vector(-244.376138, 385.030447, 0), App.Vector(-258.932298, 385.030447, 0)),
], False)
sketch16.addConstraint([
    Sketcher.Constraint("Coincident", 0, 2, 1, 1),
    Sketcher.Constraint("Coincident", 1, 2, 2, 1),
    Sketcher.Constraint("Coincident", 2, 2, 3, 1),
    Sketcher.Constraint("Coincident", 3, 2, 0, 1),
    Sketcher.Constraint("Coincident", 4, 2, 5, 1),
    Sketcher.Constraint("Coincident", 5, 2, 6, 1),
    Sketcher.Constraint("Coincident", 6, 2, 7, 1),
    Sketcher.Constraint("Coincident", 7, 2, 8, 2),
    Sketcher.Constraint("Coincident", 8, 1, 9, 2),
    Sketcher.Constraint("Coincident", 9, 1, 10, 1),
    Sketcher.Constraint("Coincident", 10, 2, 11, 1),
    Sketcher.Constraint("Coincident", 11, 2, 12, 1),
    Sketcher.Constraint("Coincident", 12, 2, 13, 1),
    Sketcher.Constraint("Coincident", 13, 2, 14, 1),
    Sketcher.Constraint("Coincident", 14, 2, 15, 1),
    Sketcher.Constraint("Coincident", 15, 2, 16, 1),
    Sketcher.Constraint("Coincident", 16, 2, 17, 1),
    Sketcher.Constraint("Coincident", 17, 2, 18, 1),
    Sketcher.Constraint("Coincident", 18, 2, 19, 1),
    Sketcher.Constraint("Coincident", 19, 2, 4, 1),
    Sketcher.Constraint("Coincident", 20, 2, 21, 1),
    Sketcher.Constraint("Coincident", 21, 2, 22, 1),
    Sketcher.Constraint("Coincident", 22, 2, 23, 1),
    Sketcher.Constraint("Coincident", 23, 2, 24, 1),
    Sketcher.Constraint("Coincident", 24, 2, 25, 1),
    Sketcher.Constraint("Coincident", 25, 2, 26, 1),
    Sketcher.Constraint("Coincident", 26, 2, 27, 1),
    Sketcher.Constraint("Coincident", 27, 2, 28, 1),
    Sketcher.Constraint("Coincident", 28, 2, 29, 1),
    Sketcher.Constraint("Coincident", 29, 2, 20, 1),
    Sketcher.Constraint("Vertical", 0),
    Sketcher.Constraint("Horizontal", 1),
    Sketcher.Constraint("Vertical", 2),
    Sketcher.Constraint("Horizontal", 3),
    Sketcher.Constraint("Horizontal", 4),
    Sketcher.Constraint("Vertical", 5),
    Sketcher.Constraint("Horizontal", 6),
    Sketcher.Constraint("Vertical", 7),
    Sketcher.Constraint("Horizontal", 11),
    Sketcher.Constraint("Vertical", 12),
    Sketcher.Constraint("Horizontal", 16),
    Sketcher.Constraint("Vertical", 17),
    Sketcher.Constraint("Vertical", 20),
    Sketcher.Constraint("Horizontal", 21),
    Sketcher.Constraint("Vertical", 22),
    Sketcher.Constraint("Horizontal", 23),
    Sketcher.Constraint("Vertical", 26),
    Sketcher.Constraint("Horizontal", 27),
    Sketcher.Constraint("Vertical", 28),
    Sketcher.Constraint("Horizontal", 29),
    Sketcher.Constraint("Coincident", 13, 3, 9, 3),
    Sketcher.Constraint("Radius", 9, Q("8.057281 mm")),
    Sketcher.Constraint("DistanceX", 11, 2, 11, 1, Q("2.615301 mm")),
    Sketcher.Constraint("DistanceY", 22, 1, 22, 2, Q("18.8432 mm")),
    Sketcher.Constraint("Radius", 8, Q("8.091657 mm")),
    Sketcher.Constraint("Radius", 13, Q("5.666647 mm")),
    Sketcher.Constraint("Radius", 18, Q("5.750784 mm")),
    Sketcher.Constraint("DistanceX", 8, 3, 9, 3, Q("12.433001 mm")),
    Sketcher.Constraint("DistanceX", 18, 3, 13, 3, Q("12.433001 mm")),
    Sketcher.Constraint("DistanceX", 4, 2, 4, 1, Q("3.54228 mm")),
    Sketcher.Constraint("DistanceX", 6, 1, 6, 2, Q("3.753492 mm")),
    Sketcher.Constraint("DistanceX", 29, 2, 29, 1, Q("14.55616 mm")),
    Sketcher.Constraint("DistanceY", 0, 2, 0, 1, Q("43.68833 mm")),
    Sketcher.Constraint("DistanceY", 7, 2, 7, 1, Q("1.85799 mm")),
    Sketcher.Constraint("DistanceY", 12, 1, 12, 2, Q("16.005971 mm")),
    Sketcher.Constraint("DistanceY", 20, 1, 20, 2, Q("2.53464 mm")),
    Sketcher.Constraint("DistanceY", 28, 2, 28, 1, Q("2.53765 mm")),
    Sketcher.Constraint("DistanceY", 8, 1, 7, 2, Q("1.156898 mm")),
    Sketcher.Constraint("DistanceX", 11, 2, 9, 1, Q("2.373698 mm")),
    Sketcher.Constraint("DistanceY", 14, 2, 13, 3, Q("2.334799 mm")),
    Sketcher.Constraint("DistanceY", 18, 3, 18, 2, Q("2.017699 mm")),
    Sketcher.Constraint("DistanceX", 21, 2, 19, 2, Q("21.2861 mm")),
    Sketcher.Constraint("Distance", 15, Q("12.38713 mm")),
    Sketcher.Constraint("Distance", 24, Q("3.84596 mm")),
    Sketcher.Constraint("DistanceX", 1, 1, 1, 2, Q("75.527574 mm")),
    Sketcher.Constraint("DistanceX", 16, 2, 16, 1, Q("3.162234 mm")),
    Sketcher.Constraint("DistanceX", 21, 1, 21, 2, Q("5.539933 mm")),
    Sketcher.Constraint("DistanceX", 23, 2, 23, 1, Q("6.174256 mm")),
    Sketcher.Constraint("DistanceX", 27, 1, 27, 2, Q("5.504042 mm")),
    Sketcher.Constraint("DistanceY", 5, 1, 5, 2, Q("22.880005 mm")),
    Sketcher.Constraint("DistanceY", 17, 1, 17, 2, Q("17.471065 mm")),
    Sketcher.Constraint("DistanceY", 26, 2, 26, 1, Q("22.994955 mm")),
    Sketcher.Constraint("DistanceX", 8, 3, -1, 1, Q("226.83787 mm")),
    Sketcher.Constraint("DistanceY", -1, 1, 9, 3, Q("400.304862 mm")),
    Sketcher.Constraint("DistanceX", 0, 2, -1, 1, Q("271.174618 mm")),
    Sketcher.Constraint("DistanceY", -1, 1, 2, 2, Q("418.750032 mm")),
    Sketcher.Constraint("DistanceY", -1, 1, 4, 2, Q("385.585769 mm")),
    Sketcher.Constraint("DistanceX", 9, 1, -1, 1, Q("206.512581 mm")),
    Sketcher.Constraint("DistanceY", -1, 1, 13, 2, Q("403.18872 mm")),
    Sketcher.Constraint("DistanceX", 14, 2, -1, 1, Q("219.086261 mm")),
    Sketcher.Constraint("DistanceX", 15, 2, -1, 1, Q("218.821189 mm")),
    Sketcher.Constraint("DistanceY", -1, 1, 25, 2, Q("410.563052 mm")),
    Sketcher.Constraint("DistanceY", 24, 2, 3, 2, Q("8.49786 mm")),
])
pocket4 = body.newObject("PartDesign::Pocket", "Pocket003")
pocket4.Profile = sketch16
pocket4.Length = 2

sketch17 = body.newObject("Sketcher::SketchObject", "Sketch016")
sketch17.AttachmentSupport = (doc.getObject("XY_Plane"), [""])
sketch17.MapMode = "FlatFace"
sketch17.AttachmentOffset = App.Placement(App.Vector(0, 0, 311.953556), App.Rotation())
sketch17.addGeometry([
    Part.LineSegment(App.Vector(-196, 459, 0), App.Vector(-271, 459, 0)),
    Part.LineSegment(App.Vector(-271, 459, 0), App.Vector(-271, 418, 0)),
    Part.LineSegment(App.Vector(-271, 418, 0), App.Vector(-196, 418, 0)),
    Part.LineSegment(App.Vector(-196, 418, 0), App.Vector(-196, 459, 0)),
], False)
sketch17.addConstraint([
    Sketcher.Constraint("Coincident", 0, 2, 1, 1),
    Sketcher.Constraint("Coincident", 1, 2, 2, 1),
    Sketcher.Constraint("Coincident", 2, 2, 3, 1),
    Sketcher.Constraint("Coincident", 3, 2, 0, 1),
    Sketcher.Constraint("Horizontal", 0),
    Sketcher.Constraint("Vertical", 1),
    Sketcher.Constraint("Horizontal", 2),
    Sketcher.Constraint("DistanceX", 2, 1, 2, 2, Q("75.505361 mm")),
    Sketcher.Constraint("DistanceX", 0, 2, 0, 1, Q("75.562396 mm")),
    Sketcher.Constraint("DistanceY", 1, 2, 1, 1, Q("40.415853 mm")),
    Sketcher.Constraint("DistanceX", 0, 2, -1, 1, Q("271.20944 mm")),
    Sketcher.Constraint("DistanceY", -1, 1, 0, 2, Q("458.857229 mm")),
])
pocket5 = body.newObject("PartDesign::Pocket", "Pocket004")
pocket5.Profile = sketch17
pocket5.Length = 1

sketch18 = body.newObject("Sketcher::SketchObject", "Sketch017")
sketch18.AttachmentSupport = (doc.getObject("XY_Plane"), [""])
sketch18.MapMode = "FlatFace"
sketch18.AttachmentOffset = App.Placement(App.Vector(0, 0, 314.953556), App.Rotation())
sketch18.addGeometry([
    Part.LineSegment(App.Vector(-271, 457, 0), App.Vector(-271, 419, 0)),
    Part.LineSegment(App.Vector(-271, 419, 0), App.Vector(-196, 419, 0)),
    Part.LineSegment(App.Vector(-196, 419, 0), App.Vector(-196, 457, 0)),
    Part.LineSegment(App.Vector(-196, 457, 0), App.Vector(-271, 457, 0)),
], False)
sketch18.addConstraint([
    Sketcher.Constraint("Coincident", 0, 2, 1, 1),
    Sketcher.Constraint("Coincident", 1, 2, 2, 1),
    Sketcher.Constraint("Coincident", 2, 2, 3, 1),
    Sketcher.Constraint("Coincident", 3, 2, 0, 1),
    Sketcher.Constraint("Vertical", 0),
    Sketcher.Constraint("Horizontal", 1),
    Sketcher.Constraint("Vertical", 2),
    Sketcher.Constraint("Horizontal", 3),
    Sketcher.Constraint("DistanceX", 1, 1, 1, 2, Q("75.494641 mm")),
    Sketcher.Constraint("DistanceY", 0, 2, 0, 1, Q("38.009857 mm")),
    Sketcher.Constraint("DistanceY", -1, 1, 0, 2, Q("418.750032 mm")),
    Sketcher.Constraint("DistanceX", 0, 2, -1, 1, Q("271.141685 mm")),
])
pocket6 = body.newObject("PartDesign::Pocket", "Pocket005")
pocket6.Profile = sketch18
pocket6.Length = 3

sketch19 = body.newObject("Sketcher::SketchObject", "Sketch018")
sketch19.AttachmentSupport = (doc.getObject("XY_Plane"), [""])
sketch19.MapMode = "FlatFace"
sketch19.AttachmentOffset = App.Placement(App.Vector(0, 0, 310.953556), App.Rotation())
sketch19.addGeometry([
    Part.LineSegment(App.Vector(-254.3, 446.7, 0), App.Vector(-254.3, 426.4, 0)),
    Part.LineSegment(App.Vector(-254.3, 426.4, 0), App.Vector(-259.4, 426.4, 0)),
    Part.LineSegment(App.Vector(-259.4, 426.4, 0), App.Vector(-259.4, 423.3, 0)),
    Part.LineSegment(App.Vector(-259.4, 423.3, 0), App.Vector(-244.7, 423.3, 0)),
    Part.LineSegment(App.Vector(-244.7, 423.3, 0), App.Vector(-244.7, 426.3, 0)),
    Part.LineSegment(App.Vector(-244.7, 426.3, 0), App.Vector(-250.7, 426.3, 0)),
    Part.LineSegment(App.Vector(-250.7, 426.3, 0), App.Vector(-250.7, 450.1, 0)),
    Part.LineSegment(App.Vector(-250.7, 450.1, 0), App.Vector(-259.4, 450.1, 0)),
    Part.LineSegment(App.Vector(-259.4, 450.1, 0), App.Vector(-259.4, 446.7, 0)),
    Part.LineSegment(App.Vector(-259.4, 446.7, 0), App.Vector(-254.3, 446.7, 0)),
], False)
sketch19.addConstraint([
    Sketcher.Constraint("Coincident", 0, 2, 1, 1),
    Sketcher.Constraint("Coincident", 1, 2, 2, 1),
    Sketcher.Constraint("Coincident", 2, 2, 3, 1),
    Sketcher.Constraint("Coincident", 3, 2, 4, 1),
    Sketcher.Constraint("Coincident", 4, 2, 5, 1),
    Sketcher.Constraint("Coincident", 5, 2, 6, 1),
    Sketcher.Constraint("Coincident", 6, 2, 7, 1),
    Sketcher.Constraint("Coincident", 7, 2, 8, 1),
    Sketcher.Constraint("Coincident", 8, 2, 9, 1),
    Sketcher.Constraint("Coincident", 9, 2, 0, 1),
    Sketcher.Constraint("Vertical", 0),
    Sketcher.Constraint("Horizontal", 1),
    Sketcher.Constraint("Vertical", 2),
    Sketcher.Constraint("Horizontal", 3),
    Sketcher.Constraint("Vertical", 4),
    Sketcher.Constraint("Horizontal", 5),
    Sketcher.Constraint("Vertical", 6),
    Sketcher.Constraint("Horizontal", 7),
    Sketcher.Constraint("Vertical", 8),
    Sketcher.Constraint("Horizontal", 9),
    Sketcher.Constraint("Vertical", 2, 2, 7, 2),
    Sketcher.Constraint("DistanceX", 1, 2, 1, 1, Q("5.083329 mm")),
    Sketcher.Constraint("DistanceY", 0, 2, 0, 1, Q("20.384981 mm")),
    Sketcher.Constraint("DistanceY", 4, 1, 4, 2, Q("3.070339 mm")),
    Sketcher.Constraint("DistanceY", 5, 2, 8, 2, Q("20.3953 mm")),
    Sketcher.Constraint("DistanceX", 3, 1, 3, 2, Q("14.717897 mm")),
    Sketcher.Constraint("DistanceX", 5, 2, 5, 1, Q("6.049784 mm")),
    Sketcher.Constraint("DistanceY", 6, 1, 6, 2, Q("23.770083 mm")),
    Sketcher.Constraint("DistanceX", 1, 2, -1, 1, Q("259.396181 mm")),
    Sketcher.Constraint("DistanceY", -1, 1, 2, 2, Q("423.275008 mm")),
])
pad13 = body.newObject("PartDesign::Pad", "Pad012")
pad13.Profile = sketch19
pad13.Length = 2

sketch20 = body.newObject("Sketcher::SketchObject", "Sketch019")
sketch20.AttachmentSupport = (doc.getObject("XY_Plane"), [""])
sketch20.MapMode = "FlatFace"
sketch20.AttachmentOffset = App.Placement(App.Vector(0, 0, 310.953556), App.Rotation())
sketch20.addGeometry([
    Part.LineSegment(App.Vector(-231.7, 423.4, 0), App.Vector(-228.3, 423.4, 0)),
    Part.LineSegment(App.Vector(-228.3, 423.4, 0), App.Vector(-228.1, 436.3, 0)),
    Part.ArcOfCircle(Part.Circle(App.Vector(-224.5, 443, 0), App.Vector(0, 0, 1), 7.6), math.radians(-118), math.radians(122)),
    Part.LineSegment(App.Vector(-228.6, 449.4, 0), App.Vector(-228.6, 450.3, 0)),
    Part.LineSegment(App.Vector(-228.6, 450.3, 0), App.Vector(-231.7, 450.3, 0)),
    Part.LineSegment(App.Vector(-231.7, 450.3, 0), App.Vector(-231.7, 423.4, 0)),
    Part.LineSegment(App.Vector(-228.3, 439.2, 0), App.Vector(-228.6, 446.5, 0)),
    Part.ArcOfCircle(Part.Circle(App.Vector(-224.5, 443, 0), App.Vector(0, 0, 1), 5.3), math.radians(-135), math.radians(139)),
], False)
sketch20.addConstraint([
    Sketcher.Constraint("Coincident", 0, 2, 1, 1),
    Sketcher.Constraint("Coincident", 1, 2, 2, 1),
    Sketcher.Constraint("Coincident", 2, 2, 3, 1),
    Sketcher.Constraint("Coincident", 3, 2, 4, 1),
    Sketcher.Constraint("Coincident", 4, 2, 5, 1),
    Sketcher.Constraint("Coincident", 5, 2, 0, 1),
    Sketcher.Constraint("Coincident", 6, 1, 7, 1),
    Sketcher.Constraint("Coincident", 7, 2, 6, 2),
    Sketcher.Constraint("Horizontal", 0),
    Sketcher.Constraint("Horizontal", 4),
    Sketcher.Constraint("Vertical", 5),
    Sketcher.Constraint("Coincident", 7, 3, 2, 3),
    Sketcher.Constraint("Vertical", 0, 2, 6, 1),
    Sketcher.Constraint("Vertical", 2, 2, 7, 2),
    Sketcher.Constraint("Radius", 2, Q("7.599669 mm")),
    Sketcher.Constraint("Radius", 7, Q("5.336161 mm")),
    Sketcher.Constraint("DistanceX", 4, 2, 4, 1, Q("3.123269 mm")),
    Sketcher.Constraint("DistanceY", 5, 2, 5, 1, Q("26.932149 mm")),
    Sketcher.Constraint("DistanceY", 0, 2, 2, 2, Q("26.083199 mm")),
    Sketcher.Constraint("Distance", 6, Q("7.261211 mm")),
    Sketcher.Constraint("DistanceX", 0, 1, 0, 2, Q("3.440926 mm")),
    Sketcher.Constraint("DistanceX", 1, 2, -1, 1, Q("228.145562 mm")),
    Sketcher.Constraint("DistanceX", 2, 2, -1, 1, Q("228.566069 mm")),
    Sketcher.Constraint("DistanceX", 3, 2, -1, 1, Q("228.615642 mm")),
    Sketcher.Constraint("DistanceY", -1, 1, 6, 1, Q("439.23661 mm")),
])
pad14 = body.newObject("PartDesign::Pad", "Pad013")
pad14.Profile = sketch20
pad14.Length = 2

doc.recompute()
